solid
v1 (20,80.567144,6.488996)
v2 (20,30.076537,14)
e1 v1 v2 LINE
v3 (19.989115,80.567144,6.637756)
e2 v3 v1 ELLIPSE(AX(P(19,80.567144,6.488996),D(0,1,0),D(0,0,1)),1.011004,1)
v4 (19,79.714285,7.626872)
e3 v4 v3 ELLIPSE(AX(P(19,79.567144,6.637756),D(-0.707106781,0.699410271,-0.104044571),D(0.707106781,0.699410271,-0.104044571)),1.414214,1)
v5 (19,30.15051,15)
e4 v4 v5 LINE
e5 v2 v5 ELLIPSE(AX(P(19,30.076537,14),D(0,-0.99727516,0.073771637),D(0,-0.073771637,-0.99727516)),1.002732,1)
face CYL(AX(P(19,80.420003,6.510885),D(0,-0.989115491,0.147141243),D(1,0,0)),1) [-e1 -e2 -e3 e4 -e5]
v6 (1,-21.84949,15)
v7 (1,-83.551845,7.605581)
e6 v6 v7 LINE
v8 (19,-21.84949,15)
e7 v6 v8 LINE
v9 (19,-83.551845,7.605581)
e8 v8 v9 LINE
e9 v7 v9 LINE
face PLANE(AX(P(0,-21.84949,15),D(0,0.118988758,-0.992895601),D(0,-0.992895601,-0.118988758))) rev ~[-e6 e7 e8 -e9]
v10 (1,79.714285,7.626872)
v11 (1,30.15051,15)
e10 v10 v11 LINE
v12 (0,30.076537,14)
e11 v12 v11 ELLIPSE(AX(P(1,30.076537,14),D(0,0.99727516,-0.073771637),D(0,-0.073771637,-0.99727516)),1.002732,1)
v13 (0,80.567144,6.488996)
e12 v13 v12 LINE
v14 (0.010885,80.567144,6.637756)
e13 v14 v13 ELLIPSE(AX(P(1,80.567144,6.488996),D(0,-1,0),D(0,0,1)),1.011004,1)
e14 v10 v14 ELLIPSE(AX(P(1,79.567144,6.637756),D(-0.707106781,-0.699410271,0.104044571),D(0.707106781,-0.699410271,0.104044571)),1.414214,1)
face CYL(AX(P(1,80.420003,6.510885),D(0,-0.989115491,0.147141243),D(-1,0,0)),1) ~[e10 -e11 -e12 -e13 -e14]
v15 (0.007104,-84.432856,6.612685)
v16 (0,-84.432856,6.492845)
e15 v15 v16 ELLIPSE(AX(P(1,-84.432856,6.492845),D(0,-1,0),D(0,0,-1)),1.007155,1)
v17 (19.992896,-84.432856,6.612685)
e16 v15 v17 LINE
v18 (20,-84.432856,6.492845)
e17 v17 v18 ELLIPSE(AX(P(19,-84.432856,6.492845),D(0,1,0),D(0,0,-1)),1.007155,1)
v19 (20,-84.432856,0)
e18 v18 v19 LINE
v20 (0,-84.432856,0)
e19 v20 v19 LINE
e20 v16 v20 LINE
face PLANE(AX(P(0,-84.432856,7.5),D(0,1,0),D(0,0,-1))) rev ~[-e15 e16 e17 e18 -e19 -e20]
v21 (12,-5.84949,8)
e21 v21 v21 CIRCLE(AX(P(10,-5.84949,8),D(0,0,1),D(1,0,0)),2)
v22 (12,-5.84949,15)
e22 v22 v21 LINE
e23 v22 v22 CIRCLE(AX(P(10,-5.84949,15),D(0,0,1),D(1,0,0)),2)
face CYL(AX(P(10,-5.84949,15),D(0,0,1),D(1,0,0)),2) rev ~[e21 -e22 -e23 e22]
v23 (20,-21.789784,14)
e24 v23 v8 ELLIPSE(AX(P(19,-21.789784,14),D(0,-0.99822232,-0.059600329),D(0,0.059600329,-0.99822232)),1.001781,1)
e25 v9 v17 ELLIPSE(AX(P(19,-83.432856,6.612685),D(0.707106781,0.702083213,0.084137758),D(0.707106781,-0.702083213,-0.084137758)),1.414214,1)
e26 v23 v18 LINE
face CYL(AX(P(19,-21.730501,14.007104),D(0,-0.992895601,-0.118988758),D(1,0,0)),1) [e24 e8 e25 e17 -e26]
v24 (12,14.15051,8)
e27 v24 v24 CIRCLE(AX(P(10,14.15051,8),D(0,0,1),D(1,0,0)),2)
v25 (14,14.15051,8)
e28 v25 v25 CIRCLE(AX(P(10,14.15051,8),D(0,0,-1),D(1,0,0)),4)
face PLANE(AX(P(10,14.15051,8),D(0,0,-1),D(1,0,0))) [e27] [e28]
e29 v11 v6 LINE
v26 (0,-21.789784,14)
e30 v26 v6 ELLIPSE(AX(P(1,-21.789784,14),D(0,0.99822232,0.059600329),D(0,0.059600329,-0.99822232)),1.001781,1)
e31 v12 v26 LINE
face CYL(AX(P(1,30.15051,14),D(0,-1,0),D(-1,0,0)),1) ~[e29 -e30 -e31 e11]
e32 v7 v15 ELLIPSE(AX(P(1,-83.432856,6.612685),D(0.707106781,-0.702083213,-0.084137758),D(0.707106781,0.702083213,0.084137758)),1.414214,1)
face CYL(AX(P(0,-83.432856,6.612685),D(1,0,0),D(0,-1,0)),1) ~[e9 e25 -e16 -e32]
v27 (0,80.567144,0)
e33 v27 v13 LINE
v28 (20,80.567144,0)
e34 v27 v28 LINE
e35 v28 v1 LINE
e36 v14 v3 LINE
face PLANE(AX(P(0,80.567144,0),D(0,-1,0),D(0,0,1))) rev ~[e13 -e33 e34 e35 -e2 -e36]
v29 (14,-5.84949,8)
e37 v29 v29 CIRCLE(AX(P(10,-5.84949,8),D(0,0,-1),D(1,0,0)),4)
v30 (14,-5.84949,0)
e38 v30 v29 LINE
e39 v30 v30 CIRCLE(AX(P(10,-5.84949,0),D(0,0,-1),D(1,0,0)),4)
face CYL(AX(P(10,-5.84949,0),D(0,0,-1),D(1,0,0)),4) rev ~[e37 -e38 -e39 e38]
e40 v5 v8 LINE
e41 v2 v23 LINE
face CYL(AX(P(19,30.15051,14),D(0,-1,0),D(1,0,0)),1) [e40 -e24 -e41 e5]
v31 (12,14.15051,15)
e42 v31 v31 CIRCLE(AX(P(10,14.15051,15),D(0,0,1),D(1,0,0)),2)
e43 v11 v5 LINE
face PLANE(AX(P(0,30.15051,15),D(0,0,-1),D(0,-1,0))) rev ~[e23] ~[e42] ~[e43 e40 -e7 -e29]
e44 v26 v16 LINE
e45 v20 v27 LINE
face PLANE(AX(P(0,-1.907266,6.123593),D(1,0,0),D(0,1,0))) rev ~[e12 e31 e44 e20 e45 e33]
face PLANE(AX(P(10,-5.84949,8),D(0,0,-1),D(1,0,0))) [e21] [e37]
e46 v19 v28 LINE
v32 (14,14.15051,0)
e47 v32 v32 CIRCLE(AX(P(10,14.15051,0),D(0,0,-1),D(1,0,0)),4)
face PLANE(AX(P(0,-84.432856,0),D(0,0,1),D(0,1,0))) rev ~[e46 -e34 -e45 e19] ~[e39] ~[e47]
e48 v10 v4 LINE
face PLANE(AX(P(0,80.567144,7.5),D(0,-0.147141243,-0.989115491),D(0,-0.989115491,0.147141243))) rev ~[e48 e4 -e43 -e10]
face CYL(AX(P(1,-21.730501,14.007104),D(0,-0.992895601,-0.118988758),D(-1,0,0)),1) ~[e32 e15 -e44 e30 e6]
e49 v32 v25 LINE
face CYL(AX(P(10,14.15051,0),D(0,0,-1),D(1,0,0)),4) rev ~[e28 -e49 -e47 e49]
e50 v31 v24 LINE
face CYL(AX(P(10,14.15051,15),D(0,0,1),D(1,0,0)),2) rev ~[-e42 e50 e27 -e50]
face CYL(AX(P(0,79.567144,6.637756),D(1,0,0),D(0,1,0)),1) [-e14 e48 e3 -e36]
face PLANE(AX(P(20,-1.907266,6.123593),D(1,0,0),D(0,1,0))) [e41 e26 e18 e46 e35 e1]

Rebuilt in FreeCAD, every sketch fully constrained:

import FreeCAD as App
import Part
import Sketcher

V = App.Vector
Q = App.Units.Quantity


def edges_at(feature, points):
    """Names of the edges that pass closest to the given points."""
    edges = feature.Shape.Edges
    near = lambda p: min(range(len(edges)), key=lambda i: edges[i].distToShape(Part.Vertex(*p))[0])
    return sorted({f"Edge{near(p) + 1}" for p in points})


def add_polygon(sketch, points):
    """Adds a closed chain of lines whose ends are joined by coincident constraints."""
    first, n = sketch.GeometryCount, len(points)
    for a, b in zip(points, points[1:] + points[:1]):
        sketch.addGeometry(Part.LineSegment(App.Vector(*a, 0), App.Vector(*b, 0)), False)
    for i in range(n):
        sketch.addConstraint(Sketcher.Constraint("Coincident", first + i, 2, first + (i + 1) % n, 1))

doc = App.newDocument("Part")
body = doc.addObject("PartDesign::Body", "Body")

# Sketch on YZ plane
sketch1 = body.newObject("Sketcher::SketchObject", "Sketch")
sketch1.AttachmentSupport = (doc.getObject("YZ_Plane"), [""])
sketch1.MapMode = "FlatFace"
add_polygon(sketch1, [(-84, 0), (81, 0), (81, 8), (30, 15), (-22, 15), (-84, 8)])  # lines 0-5
sketch1.addConstraint(Sketcher.Constraint("Horizontal", 0))
sketch1.addConstraint(Sketcher.Constraint("Vertical", 1))
sketch1.addConstraint(Sketcher.Constraint("Horizontal", 3))
sketch1.addConstraint(Sketcher.Constraint("Vertical", 5))
sketch1.addConstraint(Sketcher.Constraint("PointOnObject", 0, 2, -1))
sketch1.addConstraint(Sketcher.Constraint("Horizontal", 1, 2, 4, 2))
sketch1.addConstraint(Sketcher.Constraint("DistanceX", 0, 1, 0, 2, Q("165 mm")))
sketch1.addConstraint(Sketcher.Constraint("DistanceX", 3, 2, 3, 1, Q("52 mm")))
sketch1.addConstraint(Sketcher.Constraint("DistanceY", 1, 1, 1, 2, Q("7.5 mm")))
sketch1.addConstraint(Sketcher.Constraint("DistanceY", -1, 1, 2, 2, Q("15 mm")))
sketch1.addConstraint(Sketcher.Constraint("DistanceX", -1, 1, 2, 2, Q("30.15051 mm")))
sketch1.addConstraint(Sketcher.Constraint("Distance", 2, Q("50.971433 mm")))
pad1 = body.newObject("PartDesign::Pad", "Pad")
pad1.Profile = sketch1
pad1.Length = 20

# Sketch on XY plane
sketch2 = body.newObject("Sketcher::SketchObject", "Sketch001")
sketch2.AttachmentSupport = (doc.getObject("XY_Plane"), [""])
sketch2.MapMode = "FlatFace"
sketch2.AttachmentOffset = App.Placement(V(0, 0, 15), App.Rotation())
sketch2.addGeometry(Part.Circle(V(10, 14.2, 0), V(0, 0, 1), 2), False)
sketch2.addGeometry(Part.Circle(V(10, -5.8, 0), V(0, 0, 1), 2), False)
sketch2.addConstraint(Sketcher.Constraint("Equal", 0, 1))
sketch2.addConstraint(Sketcher.Constraint("Vertical", 0, 3, 1, 3))
sketch2.addConstraint(Sketcher.Constraint("Diameter", 0, Q("4 mm")))
sketch2.addConstraint(Sketcher.Constraint("DistanceX", -1, 1, 0, 3, Q("10 mm")))
sketch2.addConstraint(Sketcher.Constraint("DistanceY", 1, 3, 0, 3, Q("20 mm")))
sketch2.addConstraint(Sketcher.Constraint("DistanceY", -1, 1, 0, 3, Q("14.15051 mm")))
pocket1 = body.newObject("PartDesign::Pocket", "Pocket")
pocket1.Profile = sketch2
pocket1.Type = "ThroughAll"

# Sketch on XY plane
sketch3 = body.newObject("Sketcher::SketchObject", "Sketch002")
sketch3.AttachmentSupport = (doc.getObject("XY_Plane"), [""])
sketch3.MapMode = "FlatFace"
sketch3.addGeometry(Part.Circle(V(10, -5.8, 0), V(0, 0, 1), 4), False)
sketch3.addGeometry(Part.Circle(V(10, 14.2, 0), V(0, 0, 1), 4), False)
sketch3.addConstraint(Sketcher.Constraint("Equal", 0, 1))
sketch3.addConstraint(Sketcher.Constraint("Vertical", 0, 3, 1, 3))
sketch3.addConstraint(Sketcher.Constraint("Diameter", 0, Q("8 mm")))
sketch3.addConstraint(Sketcher.Constraint("DistanceX", -1, 1, 0, 3, Q("10 mm")))
sketch3.addConstraint(Sketcher.Constraint("DistanceY", 0, 3, 1, 3, Q("20 mm")))
sketch3.addConstraint(Sketcher.Constraint("DistanceY", 0, 3, -1, 1, Q("5.84949 mm")))
pocket2 = body.newObject("PartDesign::Pocket", "Pocket001")
pocket2.Profile = sketch3
pocket2.Length = 8
pocket2.Reversed = True
doc.recompute()

fillet = body.newObject("PartDesign::Fillet", "Fillet")
fillet.Base = (pocket2, edges_at(pocket2, [
    (10, -84.433, 7.5),
    (0, -53.141, 11.25),
    (20, -53.141, 11.25),
    (20, 4.151, 15),
    (0, 4.151, 15),
    (0, 55.359, 11.25),
    (20, 55.359, 11.25),
    (10, 80.567, 7.5),
]))
fillet.Radius = 1

doc.recompute()
